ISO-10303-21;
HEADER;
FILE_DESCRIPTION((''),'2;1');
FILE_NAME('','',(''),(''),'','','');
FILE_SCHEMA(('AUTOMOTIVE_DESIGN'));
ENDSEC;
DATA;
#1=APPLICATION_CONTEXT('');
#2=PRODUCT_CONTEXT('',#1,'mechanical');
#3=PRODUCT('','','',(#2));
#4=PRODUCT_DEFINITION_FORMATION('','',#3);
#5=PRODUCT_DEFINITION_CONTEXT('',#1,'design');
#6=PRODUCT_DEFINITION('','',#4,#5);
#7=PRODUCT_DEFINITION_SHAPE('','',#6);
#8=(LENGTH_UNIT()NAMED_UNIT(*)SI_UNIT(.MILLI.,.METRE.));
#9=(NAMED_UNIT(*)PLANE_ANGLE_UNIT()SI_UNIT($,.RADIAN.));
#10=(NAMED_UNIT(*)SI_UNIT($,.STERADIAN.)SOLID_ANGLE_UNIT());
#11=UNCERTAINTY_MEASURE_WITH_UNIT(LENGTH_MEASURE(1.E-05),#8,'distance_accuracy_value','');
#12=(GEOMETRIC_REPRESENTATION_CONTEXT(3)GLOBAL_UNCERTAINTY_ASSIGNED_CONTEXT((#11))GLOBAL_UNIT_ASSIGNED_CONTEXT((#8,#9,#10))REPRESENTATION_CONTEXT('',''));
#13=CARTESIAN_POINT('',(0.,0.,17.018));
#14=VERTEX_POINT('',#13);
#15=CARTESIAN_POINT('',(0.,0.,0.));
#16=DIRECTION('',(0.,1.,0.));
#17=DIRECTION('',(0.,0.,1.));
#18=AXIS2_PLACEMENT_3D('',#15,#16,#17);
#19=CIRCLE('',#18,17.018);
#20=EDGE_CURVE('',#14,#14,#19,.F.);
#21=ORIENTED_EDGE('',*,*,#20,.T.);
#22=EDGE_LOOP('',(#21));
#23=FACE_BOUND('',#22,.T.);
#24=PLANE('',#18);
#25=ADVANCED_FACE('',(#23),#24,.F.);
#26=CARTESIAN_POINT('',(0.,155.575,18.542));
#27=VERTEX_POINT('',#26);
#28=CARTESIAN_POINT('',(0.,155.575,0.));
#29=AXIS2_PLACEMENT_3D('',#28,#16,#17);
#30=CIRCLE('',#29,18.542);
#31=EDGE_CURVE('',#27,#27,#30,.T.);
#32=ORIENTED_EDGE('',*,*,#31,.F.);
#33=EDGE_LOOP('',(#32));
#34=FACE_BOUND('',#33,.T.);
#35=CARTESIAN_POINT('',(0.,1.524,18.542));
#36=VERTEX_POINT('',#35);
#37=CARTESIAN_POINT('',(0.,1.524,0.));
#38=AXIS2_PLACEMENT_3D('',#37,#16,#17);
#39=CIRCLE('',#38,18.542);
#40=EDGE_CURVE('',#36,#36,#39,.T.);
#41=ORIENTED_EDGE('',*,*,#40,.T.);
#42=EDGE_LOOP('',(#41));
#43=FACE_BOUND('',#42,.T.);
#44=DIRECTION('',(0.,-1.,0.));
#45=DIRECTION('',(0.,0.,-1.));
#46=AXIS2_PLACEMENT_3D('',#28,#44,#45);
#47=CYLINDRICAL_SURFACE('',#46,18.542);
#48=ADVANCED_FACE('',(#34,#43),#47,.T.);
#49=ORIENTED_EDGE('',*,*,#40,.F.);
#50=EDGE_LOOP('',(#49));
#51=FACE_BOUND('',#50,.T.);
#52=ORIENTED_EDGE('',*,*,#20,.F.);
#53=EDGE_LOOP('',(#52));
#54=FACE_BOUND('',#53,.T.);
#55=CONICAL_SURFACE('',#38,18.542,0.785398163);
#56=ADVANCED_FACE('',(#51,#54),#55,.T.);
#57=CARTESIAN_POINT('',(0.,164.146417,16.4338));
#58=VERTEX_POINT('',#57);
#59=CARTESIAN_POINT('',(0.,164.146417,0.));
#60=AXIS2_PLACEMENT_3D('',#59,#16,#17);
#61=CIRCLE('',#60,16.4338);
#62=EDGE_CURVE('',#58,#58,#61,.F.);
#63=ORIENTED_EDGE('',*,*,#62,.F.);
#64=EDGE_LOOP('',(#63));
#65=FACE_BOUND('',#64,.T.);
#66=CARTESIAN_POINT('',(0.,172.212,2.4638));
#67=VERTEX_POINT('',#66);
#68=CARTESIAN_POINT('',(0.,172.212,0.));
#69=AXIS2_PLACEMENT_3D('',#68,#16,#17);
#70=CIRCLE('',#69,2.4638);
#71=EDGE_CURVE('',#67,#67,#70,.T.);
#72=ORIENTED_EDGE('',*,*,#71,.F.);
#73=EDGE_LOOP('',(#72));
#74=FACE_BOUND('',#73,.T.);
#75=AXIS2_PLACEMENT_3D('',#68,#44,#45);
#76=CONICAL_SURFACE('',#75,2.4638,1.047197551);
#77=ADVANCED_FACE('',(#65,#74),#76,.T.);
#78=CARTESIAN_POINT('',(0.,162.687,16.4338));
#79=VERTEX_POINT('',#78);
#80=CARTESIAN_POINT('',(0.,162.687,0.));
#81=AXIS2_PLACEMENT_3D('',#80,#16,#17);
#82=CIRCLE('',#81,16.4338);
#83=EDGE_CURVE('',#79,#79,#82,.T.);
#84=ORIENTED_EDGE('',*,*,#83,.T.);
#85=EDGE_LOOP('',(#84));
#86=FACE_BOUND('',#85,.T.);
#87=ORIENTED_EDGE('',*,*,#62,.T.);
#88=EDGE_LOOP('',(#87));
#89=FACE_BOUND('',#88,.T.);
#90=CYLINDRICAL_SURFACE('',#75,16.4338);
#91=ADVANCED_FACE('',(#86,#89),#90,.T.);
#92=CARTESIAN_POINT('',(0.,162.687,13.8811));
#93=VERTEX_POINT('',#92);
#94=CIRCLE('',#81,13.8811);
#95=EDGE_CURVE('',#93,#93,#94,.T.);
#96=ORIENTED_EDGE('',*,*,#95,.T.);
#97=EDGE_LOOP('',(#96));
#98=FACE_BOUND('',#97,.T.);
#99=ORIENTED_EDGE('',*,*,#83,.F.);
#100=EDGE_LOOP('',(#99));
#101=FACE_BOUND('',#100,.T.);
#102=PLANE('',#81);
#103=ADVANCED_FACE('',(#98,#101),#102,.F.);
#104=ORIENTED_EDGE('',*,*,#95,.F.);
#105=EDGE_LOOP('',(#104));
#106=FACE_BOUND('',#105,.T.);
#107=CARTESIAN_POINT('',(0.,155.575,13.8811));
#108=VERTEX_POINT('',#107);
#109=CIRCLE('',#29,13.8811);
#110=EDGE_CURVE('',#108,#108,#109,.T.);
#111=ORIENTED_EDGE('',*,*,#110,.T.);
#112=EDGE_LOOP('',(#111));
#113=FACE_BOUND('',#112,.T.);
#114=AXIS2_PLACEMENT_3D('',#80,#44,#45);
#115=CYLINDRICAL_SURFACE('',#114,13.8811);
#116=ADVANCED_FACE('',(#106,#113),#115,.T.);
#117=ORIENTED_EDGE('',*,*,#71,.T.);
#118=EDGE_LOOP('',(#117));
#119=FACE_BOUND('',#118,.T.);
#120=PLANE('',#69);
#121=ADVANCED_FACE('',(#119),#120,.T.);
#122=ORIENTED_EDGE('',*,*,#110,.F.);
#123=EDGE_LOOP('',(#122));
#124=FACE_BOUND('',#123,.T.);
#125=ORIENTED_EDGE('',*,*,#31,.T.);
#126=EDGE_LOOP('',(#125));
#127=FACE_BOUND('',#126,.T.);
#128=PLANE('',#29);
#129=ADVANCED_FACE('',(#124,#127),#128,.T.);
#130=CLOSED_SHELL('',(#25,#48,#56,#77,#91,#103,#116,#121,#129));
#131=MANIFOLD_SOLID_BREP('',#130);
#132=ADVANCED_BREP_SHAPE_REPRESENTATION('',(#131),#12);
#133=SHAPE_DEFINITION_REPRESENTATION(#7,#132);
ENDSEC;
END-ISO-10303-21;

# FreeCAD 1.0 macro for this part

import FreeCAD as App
import Part
import Sketcher

V = App.Vector
Q = App.Units.Quantity


def edges_at(feature, points):
    """Names of the edges that pass closest to the given points."""
    edges = feature.Shape.Edges
    near = lambda p: min(range(len(edges)), key=lambda i: edges[i].distToShape(Part.Vertex(*p))[0])
    return sorted({f"Edge{near(p) + 1}" for p in points})

doc = App.newDocument("Part")
body = doc.addObject("PartDesign::Body", "Body")

# Sketch on XZ plane
sketch1 = body.newObject("Sketcher::SketchObject", "Sketch")
sketch1.AttachmentSupport = (doc.getObject("XZ_Plane"), [""])
sketch1.MapMode = "FlatFace"
sketch1.addGeometry(Part.Circle(V(0, 0, 0), V(0, 0, 1), 19), False)
sketch1.addConstraint([
    Sketcher.Constraint("Coincident", 0, 3, -1, 1),
    Sketcher.Constraint("Diameter", 0, Q("1.46 in")),
])
pad1 = body.newObject("PartDesign::Pad", "Pad")
pad1.Profile = sketch1
pad1.Length = Q("6.125 in")
pad1.Reversed = True

# Sketch on XZ plane
sketch2 = body.newObject("Sketcher::SketchObject", "Sketch001")
sketch2.AttachmentSupport = (doc.getObject("XZ_Plane"), [""])
sketch2.MapMode = "FlatFace"
sketch2.AttachmentOffset = App.Placement(V(0, 0, -6.125 * 25.4), App.Rotation())
sketch2.addGeometry(Part.Circle(V(0, 0, 0), V(0, 0, 1), 14), False)
sketch2.addConstraint([
    Sketcher.Constraint("Coincident", 0, 3, -1, 1),
    Sketcher.Constraint("Diameter", 0, Q("1.093 in")),
])
pad2 = body.newObject("PartDesign::Pad", "Pad001")
pad2.Profile = sketch2
pad2.Length = Q("0.28 in")
pad2.Reversed = True

# Sketch on XZ plane
sketch3 = body.newObject("Sketcher::SketchObject", "Sketch002")
sketch3.AttachmentSupport = (doc.getObject("XZ_Plane"), [""])
sketch3.MapMode = "FlatFace"
sketch3.AttachmentOffset = App.Placement(V(0, 0, -6.405 * 25.4), App.Rotation())
sketch3.addGeometry(Part.Circle(V(0, 0, 0), V(0, 0, 1), 16), False)
sketch3.addConstraint([
    Sketcher.Constraint("Coincident", 0, 3, -1, 1),
    Sketcher.Constraint("Diameter", 0, Q("1.294 in")),
])
pad3 = body.newObject("PartDesign::Pad", "Pad002")
pad3.Profile = sketch3
pad3.Length = Q("0.375 in")
pad3.Reversed = True
doc.recompute()

chamfer = body.newObject("PartDesign::Chamfer", "Chamfer")
chamfer.Base = (pad3, edges_at(pad3, [(-16.434, 172.212, 0)]))
chamfer.ChamferType = "Two distances"
chamfer.Size = Q("0.55 in")
chamfer.Size2 = 8.065583
chamfer.FlipDirection = True
doc.recompute()

chamfer2 = body.newObject("PartDesign::Chamfer", "Chamfer001")
chamfer2.Base = (chamfer, edges_at(chamfer, [(-18.542, 0, 0)]))
chamfer2.Size = Q("0.06 in")

doc.recompute()
